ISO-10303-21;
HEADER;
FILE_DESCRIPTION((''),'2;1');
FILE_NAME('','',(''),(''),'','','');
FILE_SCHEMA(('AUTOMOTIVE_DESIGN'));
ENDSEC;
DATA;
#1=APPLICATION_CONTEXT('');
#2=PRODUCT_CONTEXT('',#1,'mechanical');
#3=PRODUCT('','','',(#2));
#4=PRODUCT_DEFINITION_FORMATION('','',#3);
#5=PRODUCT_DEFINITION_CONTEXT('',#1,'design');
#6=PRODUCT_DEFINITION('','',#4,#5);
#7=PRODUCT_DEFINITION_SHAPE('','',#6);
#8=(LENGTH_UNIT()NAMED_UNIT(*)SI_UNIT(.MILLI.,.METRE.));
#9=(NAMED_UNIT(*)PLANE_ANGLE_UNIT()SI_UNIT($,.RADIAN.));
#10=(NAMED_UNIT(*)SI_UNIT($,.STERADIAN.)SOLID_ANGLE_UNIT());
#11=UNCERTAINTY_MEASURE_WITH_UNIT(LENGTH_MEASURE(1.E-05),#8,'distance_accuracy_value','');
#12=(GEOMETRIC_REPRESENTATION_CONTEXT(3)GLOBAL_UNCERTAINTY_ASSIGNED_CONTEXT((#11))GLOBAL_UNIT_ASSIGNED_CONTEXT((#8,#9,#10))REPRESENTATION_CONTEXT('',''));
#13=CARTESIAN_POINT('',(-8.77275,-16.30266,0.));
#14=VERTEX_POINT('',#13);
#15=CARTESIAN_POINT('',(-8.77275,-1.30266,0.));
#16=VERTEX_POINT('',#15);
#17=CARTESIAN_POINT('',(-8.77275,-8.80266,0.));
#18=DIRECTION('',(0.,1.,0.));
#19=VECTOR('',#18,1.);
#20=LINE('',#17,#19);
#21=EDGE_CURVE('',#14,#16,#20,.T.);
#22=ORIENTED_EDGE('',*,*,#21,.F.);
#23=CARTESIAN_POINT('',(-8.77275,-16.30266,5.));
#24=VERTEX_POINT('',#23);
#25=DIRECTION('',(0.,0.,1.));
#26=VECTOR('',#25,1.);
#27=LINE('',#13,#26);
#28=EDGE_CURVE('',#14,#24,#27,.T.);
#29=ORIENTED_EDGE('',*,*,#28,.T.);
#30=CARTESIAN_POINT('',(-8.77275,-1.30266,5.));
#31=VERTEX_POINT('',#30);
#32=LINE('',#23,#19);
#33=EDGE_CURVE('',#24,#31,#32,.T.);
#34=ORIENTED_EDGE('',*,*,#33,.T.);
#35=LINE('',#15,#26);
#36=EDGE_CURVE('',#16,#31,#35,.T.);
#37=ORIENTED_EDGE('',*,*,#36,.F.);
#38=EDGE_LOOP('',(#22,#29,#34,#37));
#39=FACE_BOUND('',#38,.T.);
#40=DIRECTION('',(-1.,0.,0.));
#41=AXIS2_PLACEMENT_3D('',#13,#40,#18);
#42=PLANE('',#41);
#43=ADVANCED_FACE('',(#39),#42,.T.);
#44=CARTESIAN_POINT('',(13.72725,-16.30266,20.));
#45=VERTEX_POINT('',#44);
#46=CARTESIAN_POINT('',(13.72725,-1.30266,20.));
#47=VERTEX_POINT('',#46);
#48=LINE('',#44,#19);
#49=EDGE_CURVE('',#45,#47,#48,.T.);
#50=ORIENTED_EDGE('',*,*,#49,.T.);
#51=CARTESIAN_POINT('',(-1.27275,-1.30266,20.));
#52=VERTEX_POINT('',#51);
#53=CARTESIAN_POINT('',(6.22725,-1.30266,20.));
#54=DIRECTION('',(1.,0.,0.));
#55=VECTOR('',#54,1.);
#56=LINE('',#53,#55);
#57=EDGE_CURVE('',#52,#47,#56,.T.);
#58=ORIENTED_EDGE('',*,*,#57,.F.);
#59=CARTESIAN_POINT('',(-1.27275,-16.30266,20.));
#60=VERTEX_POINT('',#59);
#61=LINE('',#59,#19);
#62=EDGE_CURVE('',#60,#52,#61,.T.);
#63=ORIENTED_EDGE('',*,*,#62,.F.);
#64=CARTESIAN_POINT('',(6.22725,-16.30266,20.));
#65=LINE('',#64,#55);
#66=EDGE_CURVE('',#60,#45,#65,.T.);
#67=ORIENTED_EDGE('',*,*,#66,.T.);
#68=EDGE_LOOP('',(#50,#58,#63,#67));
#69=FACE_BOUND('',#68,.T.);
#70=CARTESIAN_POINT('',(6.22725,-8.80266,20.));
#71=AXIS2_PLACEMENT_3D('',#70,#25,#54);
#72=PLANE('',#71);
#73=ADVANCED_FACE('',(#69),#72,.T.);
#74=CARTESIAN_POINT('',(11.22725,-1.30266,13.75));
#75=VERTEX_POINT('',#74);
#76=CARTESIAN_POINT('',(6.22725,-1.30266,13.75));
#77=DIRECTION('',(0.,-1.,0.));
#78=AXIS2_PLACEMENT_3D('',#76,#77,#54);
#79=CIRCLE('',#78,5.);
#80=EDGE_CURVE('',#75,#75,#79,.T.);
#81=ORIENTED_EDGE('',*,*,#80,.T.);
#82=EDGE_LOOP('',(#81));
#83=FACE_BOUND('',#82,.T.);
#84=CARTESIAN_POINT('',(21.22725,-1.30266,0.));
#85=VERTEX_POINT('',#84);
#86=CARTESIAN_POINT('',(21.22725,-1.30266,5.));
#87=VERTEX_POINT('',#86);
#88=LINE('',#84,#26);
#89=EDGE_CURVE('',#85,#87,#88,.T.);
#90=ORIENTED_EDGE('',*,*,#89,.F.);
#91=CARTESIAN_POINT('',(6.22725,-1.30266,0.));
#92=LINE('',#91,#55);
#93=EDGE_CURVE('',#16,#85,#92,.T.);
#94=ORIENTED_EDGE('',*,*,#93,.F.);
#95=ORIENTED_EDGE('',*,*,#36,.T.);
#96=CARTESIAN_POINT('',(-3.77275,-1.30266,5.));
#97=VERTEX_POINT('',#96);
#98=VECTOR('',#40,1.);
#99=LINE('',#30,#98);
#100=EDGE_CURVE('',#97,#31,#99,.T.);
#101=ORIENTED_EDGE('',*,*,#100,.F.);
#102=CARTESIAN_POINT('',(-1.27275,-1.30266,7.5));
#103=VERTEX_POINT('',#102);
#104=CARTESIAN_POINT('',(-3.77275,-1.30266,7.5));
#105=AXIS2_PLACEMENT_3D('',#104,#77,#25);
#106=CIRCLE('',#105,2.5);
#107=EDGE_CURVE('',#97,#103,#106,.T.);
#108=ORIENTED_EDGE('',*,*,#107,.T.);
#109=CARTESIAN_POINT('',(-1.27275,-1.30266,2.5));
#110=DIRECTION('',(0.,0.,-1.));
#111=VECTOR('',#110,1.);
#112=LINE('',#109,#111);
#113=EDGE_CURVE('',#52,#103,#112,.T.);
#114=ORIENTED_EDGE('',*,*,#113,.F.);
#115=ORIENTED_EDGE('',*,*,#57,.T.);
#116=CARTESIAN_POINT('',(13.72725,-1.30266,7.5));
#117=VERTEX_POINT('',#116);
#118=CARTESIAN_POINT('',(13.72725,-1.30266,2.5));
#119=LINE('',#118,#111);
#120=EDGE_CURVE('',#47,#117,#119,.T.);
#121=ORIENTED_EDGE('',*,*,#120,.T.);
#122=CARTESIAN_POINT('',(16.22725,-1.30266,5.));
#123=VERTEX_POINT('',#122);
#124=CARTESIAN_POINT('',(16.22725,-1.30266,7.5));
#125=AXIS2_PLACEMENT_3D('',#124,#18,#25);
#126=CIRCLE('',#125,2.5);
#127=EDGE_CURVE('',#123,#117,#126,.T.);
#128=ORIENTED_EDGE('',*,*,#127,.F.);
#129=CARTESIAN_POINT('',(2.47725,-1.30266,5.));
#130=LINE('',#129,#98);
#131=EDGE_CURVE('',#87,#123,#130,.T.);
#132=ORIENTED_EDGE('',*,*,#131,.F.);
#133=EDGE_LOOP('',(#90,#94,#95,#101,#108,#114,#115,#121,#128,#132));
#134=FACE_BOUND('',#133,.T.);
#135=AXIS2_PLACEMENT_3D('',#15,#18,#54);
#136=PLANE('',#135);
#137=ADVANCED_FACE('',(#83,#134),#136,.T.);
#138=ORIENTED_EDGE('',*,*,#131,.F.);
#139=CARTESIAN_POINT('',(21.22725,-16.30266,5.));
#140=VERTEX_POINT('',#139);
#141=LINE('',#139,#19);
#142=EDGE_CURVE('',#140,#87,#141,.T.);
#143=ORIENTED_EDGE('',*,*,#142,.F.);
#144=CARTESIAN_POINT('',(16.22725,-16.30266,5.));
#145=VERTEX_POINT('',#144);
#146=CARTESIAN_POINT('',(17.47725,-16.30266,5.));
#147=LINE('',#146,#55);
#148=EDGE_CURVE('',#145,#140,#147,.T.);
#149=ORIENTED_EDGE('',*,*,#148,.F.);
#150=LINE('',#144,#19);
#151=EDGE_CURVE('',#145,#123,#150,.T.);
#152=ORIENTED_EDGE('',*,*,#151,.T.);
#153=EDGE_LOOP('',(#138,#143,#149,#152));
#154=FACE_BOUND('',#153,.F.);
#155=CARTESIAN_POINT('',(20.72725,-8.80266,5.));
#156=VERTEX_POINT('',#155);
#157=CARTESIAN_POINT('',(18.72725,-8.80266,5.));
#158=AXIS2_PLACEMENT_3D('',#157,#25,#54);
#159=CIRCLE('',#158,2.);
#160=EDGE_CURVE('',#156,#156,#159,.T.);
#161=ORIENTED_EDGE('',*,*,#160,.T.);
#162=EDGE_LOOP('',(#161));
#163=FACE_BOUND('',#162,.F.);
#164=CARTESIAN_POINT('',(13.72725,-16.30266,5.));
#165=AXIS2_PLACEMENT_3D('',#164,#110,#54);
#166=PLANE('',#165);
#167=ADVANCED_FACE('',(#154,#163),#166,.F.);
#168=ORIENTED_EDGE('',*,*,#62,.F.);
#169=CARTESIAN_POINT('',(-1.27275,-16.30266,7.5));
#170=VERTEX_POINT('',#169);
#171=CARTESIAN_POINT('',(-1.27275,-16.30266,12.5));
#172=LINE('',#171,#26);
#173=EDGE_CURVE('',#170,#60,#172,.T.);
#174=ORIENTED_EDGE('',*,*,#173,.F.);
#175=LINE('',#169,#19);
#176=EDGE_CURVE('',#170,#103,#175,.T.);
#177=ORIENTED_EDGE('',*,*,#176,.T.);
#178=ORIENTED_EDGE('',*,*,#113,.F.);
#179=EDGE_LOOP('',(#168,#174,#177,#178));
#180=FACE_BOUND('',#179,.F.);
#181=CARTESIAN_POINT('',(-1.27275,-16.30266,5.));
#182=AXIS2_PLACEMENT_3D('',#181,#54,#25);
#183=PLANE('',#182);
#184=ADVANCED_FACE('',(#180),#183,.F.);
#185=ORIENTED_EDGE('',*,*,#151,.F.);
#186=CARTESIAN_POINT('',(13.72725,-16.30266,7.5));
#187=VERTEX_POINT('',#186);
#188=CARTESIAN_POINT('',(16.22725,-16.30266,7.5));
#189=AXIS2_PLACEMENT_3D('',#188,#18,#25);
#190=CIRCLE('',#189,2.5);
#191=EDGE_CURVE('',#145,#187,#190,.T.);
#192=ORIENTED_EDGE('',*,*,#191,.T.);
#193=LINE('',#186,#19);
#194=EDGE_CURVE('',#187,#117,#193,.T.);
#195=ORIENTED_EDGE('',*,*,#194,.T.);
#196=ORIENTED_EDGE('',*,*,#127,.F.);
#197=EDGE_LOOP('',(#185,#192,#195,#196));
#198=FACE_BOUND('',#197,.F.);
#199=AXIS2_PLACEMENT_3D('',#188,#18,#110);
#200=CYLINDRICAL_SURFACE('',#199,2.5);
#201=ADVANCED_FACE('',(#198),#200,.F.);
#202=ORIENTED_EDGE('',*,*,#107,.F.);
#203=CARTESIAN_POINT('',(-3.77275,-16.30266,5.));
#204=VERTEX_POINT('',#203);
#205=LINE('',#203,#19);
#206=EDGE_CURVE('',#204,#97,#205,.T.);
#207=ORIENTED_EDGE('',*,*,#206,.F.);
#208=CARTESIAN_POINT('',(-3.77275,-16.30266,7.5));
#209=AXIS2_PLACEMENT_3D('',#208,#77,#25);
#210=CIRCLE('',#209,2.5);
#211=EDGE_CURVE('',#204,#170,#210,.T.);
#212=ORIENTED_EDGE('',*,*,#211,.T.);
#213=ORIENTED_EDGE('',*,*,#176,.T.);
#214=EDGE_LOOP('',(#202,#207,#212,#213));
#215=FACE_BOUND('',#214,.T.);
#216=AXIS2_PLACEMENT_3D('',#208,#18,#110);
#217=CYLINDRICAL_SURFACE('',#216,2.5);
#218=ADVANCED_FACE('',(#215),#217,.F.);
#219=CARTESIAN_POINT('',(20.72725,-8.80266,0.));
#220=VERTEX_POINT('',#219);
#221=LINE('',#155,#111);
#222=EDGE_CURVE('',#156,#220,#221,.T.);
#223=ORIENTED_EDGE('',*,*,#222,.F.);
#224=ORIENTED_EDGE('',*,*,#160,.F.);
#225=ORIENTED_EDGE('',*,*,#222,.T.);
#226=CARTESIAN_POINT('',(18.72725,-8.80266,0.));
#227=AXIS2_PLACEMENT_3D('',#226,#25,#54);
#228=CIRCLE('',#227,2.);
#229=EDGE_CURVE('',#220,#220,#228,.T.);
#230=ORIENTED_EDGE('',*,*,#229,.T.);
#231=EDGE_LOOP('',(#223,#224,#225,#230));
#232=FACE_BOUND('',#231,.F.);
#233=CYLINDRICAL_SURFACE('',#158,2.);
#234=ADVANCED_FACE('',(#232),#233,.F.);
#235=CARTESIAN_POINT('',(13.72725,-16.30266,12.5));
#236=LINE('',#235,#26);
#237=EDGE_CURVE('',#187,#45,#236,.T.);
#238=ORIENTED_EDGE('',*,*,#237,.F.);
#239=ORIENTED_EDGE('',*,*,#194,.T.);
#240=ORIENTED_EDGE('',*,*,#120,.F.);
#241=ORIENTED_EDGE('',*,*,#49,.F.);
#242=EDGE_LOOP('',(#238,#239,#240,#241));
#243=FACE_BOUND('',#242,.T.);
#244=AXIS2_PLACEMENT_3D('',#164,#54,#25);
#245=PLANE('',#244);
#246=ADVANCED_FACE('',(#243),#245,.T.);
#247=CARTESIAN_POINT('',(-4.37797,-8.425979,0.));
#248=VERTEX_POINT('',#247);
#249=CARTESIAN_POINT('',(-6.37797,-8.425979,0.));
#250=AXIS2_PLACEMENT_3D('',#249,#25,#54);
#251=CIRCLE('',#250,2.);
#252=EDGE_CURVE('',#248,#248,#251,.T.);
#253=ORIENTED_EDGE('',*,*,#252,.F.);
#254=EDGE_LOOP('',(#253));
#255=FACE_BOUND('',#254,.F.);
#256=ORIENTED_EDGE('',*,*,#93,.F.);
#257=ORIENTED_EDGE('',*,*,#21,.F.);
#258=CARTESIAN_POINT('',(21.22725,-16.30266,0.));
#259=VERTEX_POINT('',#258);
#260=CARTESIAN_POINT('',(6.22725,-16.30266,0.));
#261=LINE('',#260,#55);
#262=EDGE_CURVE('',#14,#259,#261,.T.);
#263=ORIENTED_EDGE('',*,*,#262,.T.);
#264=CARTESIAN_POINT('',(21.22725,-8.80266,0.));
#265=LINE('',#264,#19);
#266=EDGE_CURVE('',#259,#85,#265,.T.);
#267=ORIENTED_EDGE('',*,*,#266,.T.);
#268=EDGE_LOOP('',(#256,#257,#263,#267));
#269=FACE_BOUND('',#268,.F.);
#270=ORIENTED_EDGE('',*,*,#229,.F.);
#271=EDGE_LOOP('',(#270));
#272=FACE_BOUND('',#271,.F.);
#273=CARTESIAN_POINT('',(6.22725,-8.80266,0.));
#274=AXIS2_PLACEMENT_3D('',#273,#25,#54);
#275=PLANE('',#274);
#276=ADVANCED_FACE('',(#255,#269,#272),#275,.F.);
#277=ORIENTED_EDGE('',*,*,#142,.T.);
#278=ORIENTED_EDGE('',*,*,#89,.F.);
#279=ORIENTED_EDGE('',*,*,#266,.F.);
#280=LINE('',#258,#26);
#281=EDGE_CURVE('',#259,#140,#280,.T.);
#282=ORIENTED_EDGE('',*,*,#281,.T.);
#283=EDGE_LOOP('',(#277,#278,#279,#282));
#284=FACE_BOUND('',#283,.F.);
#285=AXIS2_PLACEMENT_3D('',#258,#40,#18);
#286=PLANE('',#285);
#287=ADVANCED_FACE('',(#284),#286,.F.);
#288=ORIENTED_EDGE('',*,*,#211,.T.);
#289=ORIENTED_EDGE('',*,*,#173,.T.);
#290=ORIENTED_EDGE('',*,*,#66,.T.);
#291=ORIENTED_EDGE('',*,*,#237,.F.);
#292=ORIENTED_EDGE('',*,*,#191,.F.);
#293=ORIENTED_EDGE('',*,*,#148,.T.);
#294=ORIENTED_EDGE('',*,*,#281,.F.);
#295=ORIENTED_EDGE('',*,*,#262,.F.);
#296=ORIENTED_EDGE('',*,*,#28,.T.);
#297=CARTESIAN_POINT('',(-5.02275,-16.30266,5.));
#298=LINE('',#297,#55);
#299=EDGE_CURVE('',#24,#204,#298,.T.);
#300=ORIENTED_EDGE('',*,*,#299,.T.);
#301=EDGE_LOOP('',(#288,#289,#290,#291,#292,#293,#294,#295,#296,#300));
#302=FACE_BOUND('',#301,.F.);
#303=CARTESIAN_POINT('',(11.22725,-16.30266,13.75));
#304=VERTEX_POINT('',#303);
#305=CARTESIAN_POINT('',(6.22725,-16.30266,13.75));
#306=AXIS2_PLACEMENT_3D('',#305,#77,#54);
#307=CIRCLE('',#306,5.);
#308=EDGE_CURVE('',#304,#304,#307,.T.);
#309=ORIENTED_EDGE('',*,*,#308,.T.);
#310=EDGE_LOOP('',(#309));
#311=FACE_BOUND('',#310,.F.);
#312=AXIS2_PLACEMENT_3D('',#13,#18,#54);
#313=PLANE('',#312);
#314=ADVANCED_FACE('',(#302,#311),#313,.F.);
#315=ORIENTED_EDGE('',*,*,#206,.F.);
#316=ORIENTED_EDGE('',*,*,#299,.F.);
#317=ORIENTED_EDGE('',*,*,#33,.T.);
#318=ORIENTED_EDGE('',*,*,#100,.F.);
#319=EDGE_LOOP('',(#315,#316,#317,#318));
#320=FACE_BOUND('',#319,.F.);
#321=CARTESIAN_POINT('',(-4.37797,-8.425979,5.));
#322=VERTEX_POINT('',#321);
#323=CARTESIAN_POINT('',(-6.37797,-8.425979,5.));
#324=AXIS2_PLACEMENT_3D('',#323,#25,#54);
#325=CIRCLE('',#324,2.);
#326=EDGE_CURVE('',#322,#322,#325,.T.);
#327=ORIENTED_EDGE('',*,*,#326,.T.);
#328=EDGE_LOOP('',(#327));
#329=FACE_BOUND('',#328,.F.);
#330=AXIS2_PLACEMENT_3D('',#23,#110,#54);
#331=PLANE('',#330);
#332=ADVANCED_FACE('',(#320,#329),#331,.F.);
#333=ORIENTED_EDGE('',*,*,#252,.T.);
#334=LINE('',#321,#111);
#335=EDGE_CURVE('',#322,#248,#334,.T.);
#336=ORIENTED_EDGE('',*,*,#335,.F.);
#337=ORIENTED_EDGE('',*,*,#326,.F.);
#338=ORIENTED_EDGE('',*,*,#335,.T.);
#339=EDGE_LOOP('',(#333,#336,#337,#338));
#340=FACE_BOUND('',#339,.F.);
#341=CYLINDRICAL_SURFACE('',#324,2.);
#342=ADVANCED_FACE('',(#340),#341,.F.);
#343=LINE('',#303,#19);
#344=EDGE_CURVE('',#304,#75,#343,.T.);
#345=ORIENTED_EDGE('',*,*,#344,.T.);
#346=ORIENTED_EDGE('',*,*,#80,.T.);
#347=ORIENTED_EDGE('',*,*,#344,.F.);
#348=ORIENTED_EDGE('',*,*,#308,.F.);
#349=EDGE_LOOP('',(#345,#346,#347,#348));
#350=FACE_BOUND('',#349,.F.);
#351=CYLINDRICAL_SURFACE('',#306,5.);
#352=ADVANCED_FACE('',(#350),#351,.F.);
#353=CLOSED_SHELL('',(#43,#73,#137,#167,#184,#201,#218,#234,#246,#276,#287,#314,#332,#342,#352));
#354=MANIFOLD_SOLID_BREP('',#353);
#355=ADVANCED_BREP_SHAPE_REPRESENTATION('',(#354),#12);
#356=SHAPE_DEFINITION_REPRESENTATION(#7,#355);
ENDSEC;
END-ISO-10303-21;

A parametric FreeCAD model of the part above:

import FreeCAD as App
import Part
import Sketcher

V = App.Vector
Q = App.Units.Quantity


def edges_at(feature, points):
    """Names of the edges that pass closest to the given points."""
    edges = feature.Shape.Edges
    near = lambda p: min(range(len(edges)), key=lambda i: edges[i].distToShape(Part.Vertex(*p))[0])
    return sorted({f"Edge{near(p) + 1}" for p in points})

doc = App.newDocument("Part")
body = doc.addObject("PartDesign::Body", "Body")

# Sketch on XY plane
sketch1 = body.newObject("Sketcher::SketchObject", "Sketch")
sketch1.AttachmentSupport = (doc.getObject("XY_Plane"), [""])
sketch1.MapMode = "FlatFace"
sketch1.addGeometry(Part.LineSegment(V(-9, -1, 0), V(-9, -16, 0)), False)
sketch1.addGeometry(Part.LineSegment(V(-9, -16, 0), V(21, -16, 0)), False)
sketch1.addGeometry(Part.LineSegment(V(21, -16, 0), V(21, -1, 0)), False)
sketch1.addGeometry(Part.LineSegment(V(21, -1, 0), V(-9, -1, 0)), False)
sketch1.addConstraint(Sketcher.Constraint("Coincident", 0, 2, 1, 1))
sketch1.addConstraint(Sketcher.Constraint("Coincident", 1, 2, 2, 1))
sketch1.addConstraint(Sketcher.Constraint("Coincident", 2, 2, 3, 1))
sketch1.addConstraint(Sketcher.Constraint("Coincident", 3, 2, 0, 1))
sketch1.addConstraint(Sketcher.Constraint("Vertical", 0))
sketch1.addConstraint(Sketcher.Constraint("Horizontal", 1))
sketch1.addConstraint(Sketcher.Constraint("Vertical", 2))
sketch1.addConstraint(Sketcher.Constraint("Horizontal", 3))
sketch1.addConstraint(Sketcher.Constraint("DistanceX", 1, 1, 1, 2, Q("30 mm")))
sketch1.addConstraint(Sketcher.Constraint("DistanceY", 0, 2, 0, 1, Q("15 mm")))
sketch1.addConstraint(Sketcher.Constraint("DistanceX", 0, 2, -1, 1, Q("8.77275 mm")))
sketch1.addConstraint(Sketcher.Constraint("DistanceY", 0, 2, -1, 1, Q("16.30266 mm")))
pad1 = body.newObject("PartDesign::Pad", "Pad")
pad1.Profile = sketch1
pad1.Length = 20

# Sketch on XZ plane
sketch2 = body.newObject("Sketcher::SketchObject", "Sketch001")
sketch2.AttachmentSupport = (doc.getObject("XZ_Plane"), [""])
sketch2.MapMode = "FlatFace"
sketch2.AttachmentOffset = App.Placement(V(0, 0, 16.30266), App.Rotation())
sketch2.addGeometry(Part.LineSegment(V(-9, 20, 0), V(-9, 5, 0)), False)
sketch2.addGeometry(Part.LineSegment(V(-9, 5, 0), V(-1, 5, 0)), False)
sketch2.addGeometry(Part.LineSegment(V(-1, 5, 0), V(-1, 20, 0)), False)
sketch2.addGeometry(Part.LineSegment(V(-1, 20, 0), V(-9, 20, 0)), False)
sketch2.addGeometry(Part.LineSegment(V(14, 20, 0), V(14, 5, 0)), False)
sketch2.addGeometry(Part.LineSegment(V(14, 5, 0), V(21, 5, 0)), False)
sketch2.addGeometry(Part.LineSegment(V(21, 5, 0), V(21, 20, 0)), False)
sketch2.addGeometry(Part.LineSegment(V(21, 20, 0), V(14, 20, 0)), False)
sketch2.addConstraint(Sketcher.Constraint("Coincident", 0, 2, 1, 1))
sketch2.addConstraint(Sketcher.Constraint("Coincident", 1, 2, 2, 1))
sketch2.addConstraint(Sketcher.Constraint("Coincident", 2, 2, 3, 1))
sketch2.addConstraint(Sketcher.Constraint("Coincident", 3, 2, 0, 1))
sketch2.addConstraint(Sketcher.Constraint("Coincident", 4, 2, 5, 1))
sketch2.addConstraint(Sketcher.Constraint("Coincident", 5, 2, 6, 1))
sketch2.addConstraint(Sketcher.Constraint("Coincident", 6, 2, 7, 1))
sketch2.addConstraint(Sketcher.Constraint("Coincident", 7, 2, 4, 1))
sketch2.addConstraint(Sketcher.Constraint("Vertical", 0))
sketch2.addConstraint(Sketcher.Constraint("Horizontal", 1))
sketch2.addConstraint(Sketcher.Constraint("Vertical", 2))
sketch2.addConstraint(Sketcher.Constraint("Horizontal", 3))
sketch2.addConstraint(Sketcher.Constraint("Vertical", 4))
sketch2.addConstraint(Sketcher.Constraint("Horizontal", 5))
sketch2.addConstraint(Sketcher.Constraint("Vertical", 6))
sketch2.addConstraint(Sketcher.Constraint("Horizontal", 7))
sketch2.addConstraint(Sketcher.Constraint("Horizontal", 1, 2, 4, 2))
sketch2.addConstraint(Sketcher.Constraint("Horizontal", 3, 2, 6, 2))
sketch2.addConstraint(Sketcher.Constraint("Equal", 3, 5))
sketch2.addConstraint(Sketcher.Constraint("DistanceY", 0, 2, 0, 1, Q("15 mm")))
sketch2.addConstraint(Sketcher.Constraint("DistanceX", 1, 1, 1, 2, Q("7.5 mm")))
sketch2.addConstraint(Sketcher.Constraint("DistanceY", -1, 1, 0, 2, Q("5 mm")))
sketch2.addConstraint(Sketcher.Constraint("DistanceX", 1, 2, 4, 2, Q("15 mm")))
sketch2.addConstraint(Sketcher.Constraint("DistanceX", 0, 2, -1, 1, Q("8.77275 mm")))
pocket1 = body.newObject("PartDesign::Pocket", "Pocket")
pocket1.Profile = sketch2
pocket1.Type = "ThroughAll"
doc.recompute()

fillet = body.newObject("PartDesign::Fillet", "Fillet")
fillet.Base = (pocket1, edges_at(pocket1, [(13.727, -8.803, 5), (-1.273, -8.803, 5)]))
fillet.Radius = 2.5

# Sketch on XZ plane
sketch3 = body.newObject("Sketcher::SketchObject", "Sketch002")
sketch3.AttachmentSupport = (doc.getObject("XZ_Plane"), [""])
sketch3.MapMode = "FlatFace"
sketch3.AttachmentOffset = App.Placement(V(0, 0, 16.30266), App.Rotation())
sketch3.addGeometry(Part.Circle(V(6, 14, 0), V(0, 0, 1), 5), False)
sketch3.addConstraint(Sketcher.Constraint("Diameter", 0, Q("10 mm")))
sketch3.addConstraint(Sketcher.Constraint("DistanceY", -1, 1, 0, 3, Q("13.75 mm")))
sketch3.addConstraint(Sketcher.Constraint("DistanceX", -1, 1, 0, 3, Q("6.22725 mm")))
pocket2 = body.newObject("PartDesign::Pocket", "Pocket001")
pocket2.Profile = sketch3
pocket2.Type = "ThroughAll"

# Sketch on XY plane
sketch4 = body.newObject("Sketcher::SketchObject", "Sketch003")
sketch4.AttachmentSupport = (doc.getObject("XY_Plane"), [""])
sketch4.MapMode = "FlatFace"
sketch4.AttachmentOffset = App.Placement(V(0, 0, 5), App.Rotation())
sketch4.addGeometry(Part.Circle(V(-6.4, -8.4, 0), V(0, 0, 1), 2), False)
sketch4.addGeometry(Part.Circle(V(18.7, -8.8, 0), V(0, 0, 1), 2), False)
sketch4.addConstraint(Sketcher.Constraint("Equal", 0, 1))
sketch4.addConstraint(Sketcher.Constraint("Diameter", 0, Q("4 mm")))
sketch4.addConstraint(Sketcher.Constraint("DistanceX", 0, 3, -1, 1, Q("6.37797 mm")))
sketch4.addConstraint(Sketcher.Constraint("DistanceY", 0, 3, -1, 1, Q("8.425979 mm")))
sketch4.addConstraint(Sketcher.Constraint("DistanceX", -1, 1, 1, 3, Q("18.72725 mm")))
sketch4.addConstraint(Sketcher.Constraint("DistanceY", 1, 3, -1, 1, Q("8.80266 mm")))
pocket3 = body.newObject("PartDesign::Pocket", "Pocket002")
pocket3.Profile = sketch4
pocket3.Type = "ThroughAll"

doc.recompute()
